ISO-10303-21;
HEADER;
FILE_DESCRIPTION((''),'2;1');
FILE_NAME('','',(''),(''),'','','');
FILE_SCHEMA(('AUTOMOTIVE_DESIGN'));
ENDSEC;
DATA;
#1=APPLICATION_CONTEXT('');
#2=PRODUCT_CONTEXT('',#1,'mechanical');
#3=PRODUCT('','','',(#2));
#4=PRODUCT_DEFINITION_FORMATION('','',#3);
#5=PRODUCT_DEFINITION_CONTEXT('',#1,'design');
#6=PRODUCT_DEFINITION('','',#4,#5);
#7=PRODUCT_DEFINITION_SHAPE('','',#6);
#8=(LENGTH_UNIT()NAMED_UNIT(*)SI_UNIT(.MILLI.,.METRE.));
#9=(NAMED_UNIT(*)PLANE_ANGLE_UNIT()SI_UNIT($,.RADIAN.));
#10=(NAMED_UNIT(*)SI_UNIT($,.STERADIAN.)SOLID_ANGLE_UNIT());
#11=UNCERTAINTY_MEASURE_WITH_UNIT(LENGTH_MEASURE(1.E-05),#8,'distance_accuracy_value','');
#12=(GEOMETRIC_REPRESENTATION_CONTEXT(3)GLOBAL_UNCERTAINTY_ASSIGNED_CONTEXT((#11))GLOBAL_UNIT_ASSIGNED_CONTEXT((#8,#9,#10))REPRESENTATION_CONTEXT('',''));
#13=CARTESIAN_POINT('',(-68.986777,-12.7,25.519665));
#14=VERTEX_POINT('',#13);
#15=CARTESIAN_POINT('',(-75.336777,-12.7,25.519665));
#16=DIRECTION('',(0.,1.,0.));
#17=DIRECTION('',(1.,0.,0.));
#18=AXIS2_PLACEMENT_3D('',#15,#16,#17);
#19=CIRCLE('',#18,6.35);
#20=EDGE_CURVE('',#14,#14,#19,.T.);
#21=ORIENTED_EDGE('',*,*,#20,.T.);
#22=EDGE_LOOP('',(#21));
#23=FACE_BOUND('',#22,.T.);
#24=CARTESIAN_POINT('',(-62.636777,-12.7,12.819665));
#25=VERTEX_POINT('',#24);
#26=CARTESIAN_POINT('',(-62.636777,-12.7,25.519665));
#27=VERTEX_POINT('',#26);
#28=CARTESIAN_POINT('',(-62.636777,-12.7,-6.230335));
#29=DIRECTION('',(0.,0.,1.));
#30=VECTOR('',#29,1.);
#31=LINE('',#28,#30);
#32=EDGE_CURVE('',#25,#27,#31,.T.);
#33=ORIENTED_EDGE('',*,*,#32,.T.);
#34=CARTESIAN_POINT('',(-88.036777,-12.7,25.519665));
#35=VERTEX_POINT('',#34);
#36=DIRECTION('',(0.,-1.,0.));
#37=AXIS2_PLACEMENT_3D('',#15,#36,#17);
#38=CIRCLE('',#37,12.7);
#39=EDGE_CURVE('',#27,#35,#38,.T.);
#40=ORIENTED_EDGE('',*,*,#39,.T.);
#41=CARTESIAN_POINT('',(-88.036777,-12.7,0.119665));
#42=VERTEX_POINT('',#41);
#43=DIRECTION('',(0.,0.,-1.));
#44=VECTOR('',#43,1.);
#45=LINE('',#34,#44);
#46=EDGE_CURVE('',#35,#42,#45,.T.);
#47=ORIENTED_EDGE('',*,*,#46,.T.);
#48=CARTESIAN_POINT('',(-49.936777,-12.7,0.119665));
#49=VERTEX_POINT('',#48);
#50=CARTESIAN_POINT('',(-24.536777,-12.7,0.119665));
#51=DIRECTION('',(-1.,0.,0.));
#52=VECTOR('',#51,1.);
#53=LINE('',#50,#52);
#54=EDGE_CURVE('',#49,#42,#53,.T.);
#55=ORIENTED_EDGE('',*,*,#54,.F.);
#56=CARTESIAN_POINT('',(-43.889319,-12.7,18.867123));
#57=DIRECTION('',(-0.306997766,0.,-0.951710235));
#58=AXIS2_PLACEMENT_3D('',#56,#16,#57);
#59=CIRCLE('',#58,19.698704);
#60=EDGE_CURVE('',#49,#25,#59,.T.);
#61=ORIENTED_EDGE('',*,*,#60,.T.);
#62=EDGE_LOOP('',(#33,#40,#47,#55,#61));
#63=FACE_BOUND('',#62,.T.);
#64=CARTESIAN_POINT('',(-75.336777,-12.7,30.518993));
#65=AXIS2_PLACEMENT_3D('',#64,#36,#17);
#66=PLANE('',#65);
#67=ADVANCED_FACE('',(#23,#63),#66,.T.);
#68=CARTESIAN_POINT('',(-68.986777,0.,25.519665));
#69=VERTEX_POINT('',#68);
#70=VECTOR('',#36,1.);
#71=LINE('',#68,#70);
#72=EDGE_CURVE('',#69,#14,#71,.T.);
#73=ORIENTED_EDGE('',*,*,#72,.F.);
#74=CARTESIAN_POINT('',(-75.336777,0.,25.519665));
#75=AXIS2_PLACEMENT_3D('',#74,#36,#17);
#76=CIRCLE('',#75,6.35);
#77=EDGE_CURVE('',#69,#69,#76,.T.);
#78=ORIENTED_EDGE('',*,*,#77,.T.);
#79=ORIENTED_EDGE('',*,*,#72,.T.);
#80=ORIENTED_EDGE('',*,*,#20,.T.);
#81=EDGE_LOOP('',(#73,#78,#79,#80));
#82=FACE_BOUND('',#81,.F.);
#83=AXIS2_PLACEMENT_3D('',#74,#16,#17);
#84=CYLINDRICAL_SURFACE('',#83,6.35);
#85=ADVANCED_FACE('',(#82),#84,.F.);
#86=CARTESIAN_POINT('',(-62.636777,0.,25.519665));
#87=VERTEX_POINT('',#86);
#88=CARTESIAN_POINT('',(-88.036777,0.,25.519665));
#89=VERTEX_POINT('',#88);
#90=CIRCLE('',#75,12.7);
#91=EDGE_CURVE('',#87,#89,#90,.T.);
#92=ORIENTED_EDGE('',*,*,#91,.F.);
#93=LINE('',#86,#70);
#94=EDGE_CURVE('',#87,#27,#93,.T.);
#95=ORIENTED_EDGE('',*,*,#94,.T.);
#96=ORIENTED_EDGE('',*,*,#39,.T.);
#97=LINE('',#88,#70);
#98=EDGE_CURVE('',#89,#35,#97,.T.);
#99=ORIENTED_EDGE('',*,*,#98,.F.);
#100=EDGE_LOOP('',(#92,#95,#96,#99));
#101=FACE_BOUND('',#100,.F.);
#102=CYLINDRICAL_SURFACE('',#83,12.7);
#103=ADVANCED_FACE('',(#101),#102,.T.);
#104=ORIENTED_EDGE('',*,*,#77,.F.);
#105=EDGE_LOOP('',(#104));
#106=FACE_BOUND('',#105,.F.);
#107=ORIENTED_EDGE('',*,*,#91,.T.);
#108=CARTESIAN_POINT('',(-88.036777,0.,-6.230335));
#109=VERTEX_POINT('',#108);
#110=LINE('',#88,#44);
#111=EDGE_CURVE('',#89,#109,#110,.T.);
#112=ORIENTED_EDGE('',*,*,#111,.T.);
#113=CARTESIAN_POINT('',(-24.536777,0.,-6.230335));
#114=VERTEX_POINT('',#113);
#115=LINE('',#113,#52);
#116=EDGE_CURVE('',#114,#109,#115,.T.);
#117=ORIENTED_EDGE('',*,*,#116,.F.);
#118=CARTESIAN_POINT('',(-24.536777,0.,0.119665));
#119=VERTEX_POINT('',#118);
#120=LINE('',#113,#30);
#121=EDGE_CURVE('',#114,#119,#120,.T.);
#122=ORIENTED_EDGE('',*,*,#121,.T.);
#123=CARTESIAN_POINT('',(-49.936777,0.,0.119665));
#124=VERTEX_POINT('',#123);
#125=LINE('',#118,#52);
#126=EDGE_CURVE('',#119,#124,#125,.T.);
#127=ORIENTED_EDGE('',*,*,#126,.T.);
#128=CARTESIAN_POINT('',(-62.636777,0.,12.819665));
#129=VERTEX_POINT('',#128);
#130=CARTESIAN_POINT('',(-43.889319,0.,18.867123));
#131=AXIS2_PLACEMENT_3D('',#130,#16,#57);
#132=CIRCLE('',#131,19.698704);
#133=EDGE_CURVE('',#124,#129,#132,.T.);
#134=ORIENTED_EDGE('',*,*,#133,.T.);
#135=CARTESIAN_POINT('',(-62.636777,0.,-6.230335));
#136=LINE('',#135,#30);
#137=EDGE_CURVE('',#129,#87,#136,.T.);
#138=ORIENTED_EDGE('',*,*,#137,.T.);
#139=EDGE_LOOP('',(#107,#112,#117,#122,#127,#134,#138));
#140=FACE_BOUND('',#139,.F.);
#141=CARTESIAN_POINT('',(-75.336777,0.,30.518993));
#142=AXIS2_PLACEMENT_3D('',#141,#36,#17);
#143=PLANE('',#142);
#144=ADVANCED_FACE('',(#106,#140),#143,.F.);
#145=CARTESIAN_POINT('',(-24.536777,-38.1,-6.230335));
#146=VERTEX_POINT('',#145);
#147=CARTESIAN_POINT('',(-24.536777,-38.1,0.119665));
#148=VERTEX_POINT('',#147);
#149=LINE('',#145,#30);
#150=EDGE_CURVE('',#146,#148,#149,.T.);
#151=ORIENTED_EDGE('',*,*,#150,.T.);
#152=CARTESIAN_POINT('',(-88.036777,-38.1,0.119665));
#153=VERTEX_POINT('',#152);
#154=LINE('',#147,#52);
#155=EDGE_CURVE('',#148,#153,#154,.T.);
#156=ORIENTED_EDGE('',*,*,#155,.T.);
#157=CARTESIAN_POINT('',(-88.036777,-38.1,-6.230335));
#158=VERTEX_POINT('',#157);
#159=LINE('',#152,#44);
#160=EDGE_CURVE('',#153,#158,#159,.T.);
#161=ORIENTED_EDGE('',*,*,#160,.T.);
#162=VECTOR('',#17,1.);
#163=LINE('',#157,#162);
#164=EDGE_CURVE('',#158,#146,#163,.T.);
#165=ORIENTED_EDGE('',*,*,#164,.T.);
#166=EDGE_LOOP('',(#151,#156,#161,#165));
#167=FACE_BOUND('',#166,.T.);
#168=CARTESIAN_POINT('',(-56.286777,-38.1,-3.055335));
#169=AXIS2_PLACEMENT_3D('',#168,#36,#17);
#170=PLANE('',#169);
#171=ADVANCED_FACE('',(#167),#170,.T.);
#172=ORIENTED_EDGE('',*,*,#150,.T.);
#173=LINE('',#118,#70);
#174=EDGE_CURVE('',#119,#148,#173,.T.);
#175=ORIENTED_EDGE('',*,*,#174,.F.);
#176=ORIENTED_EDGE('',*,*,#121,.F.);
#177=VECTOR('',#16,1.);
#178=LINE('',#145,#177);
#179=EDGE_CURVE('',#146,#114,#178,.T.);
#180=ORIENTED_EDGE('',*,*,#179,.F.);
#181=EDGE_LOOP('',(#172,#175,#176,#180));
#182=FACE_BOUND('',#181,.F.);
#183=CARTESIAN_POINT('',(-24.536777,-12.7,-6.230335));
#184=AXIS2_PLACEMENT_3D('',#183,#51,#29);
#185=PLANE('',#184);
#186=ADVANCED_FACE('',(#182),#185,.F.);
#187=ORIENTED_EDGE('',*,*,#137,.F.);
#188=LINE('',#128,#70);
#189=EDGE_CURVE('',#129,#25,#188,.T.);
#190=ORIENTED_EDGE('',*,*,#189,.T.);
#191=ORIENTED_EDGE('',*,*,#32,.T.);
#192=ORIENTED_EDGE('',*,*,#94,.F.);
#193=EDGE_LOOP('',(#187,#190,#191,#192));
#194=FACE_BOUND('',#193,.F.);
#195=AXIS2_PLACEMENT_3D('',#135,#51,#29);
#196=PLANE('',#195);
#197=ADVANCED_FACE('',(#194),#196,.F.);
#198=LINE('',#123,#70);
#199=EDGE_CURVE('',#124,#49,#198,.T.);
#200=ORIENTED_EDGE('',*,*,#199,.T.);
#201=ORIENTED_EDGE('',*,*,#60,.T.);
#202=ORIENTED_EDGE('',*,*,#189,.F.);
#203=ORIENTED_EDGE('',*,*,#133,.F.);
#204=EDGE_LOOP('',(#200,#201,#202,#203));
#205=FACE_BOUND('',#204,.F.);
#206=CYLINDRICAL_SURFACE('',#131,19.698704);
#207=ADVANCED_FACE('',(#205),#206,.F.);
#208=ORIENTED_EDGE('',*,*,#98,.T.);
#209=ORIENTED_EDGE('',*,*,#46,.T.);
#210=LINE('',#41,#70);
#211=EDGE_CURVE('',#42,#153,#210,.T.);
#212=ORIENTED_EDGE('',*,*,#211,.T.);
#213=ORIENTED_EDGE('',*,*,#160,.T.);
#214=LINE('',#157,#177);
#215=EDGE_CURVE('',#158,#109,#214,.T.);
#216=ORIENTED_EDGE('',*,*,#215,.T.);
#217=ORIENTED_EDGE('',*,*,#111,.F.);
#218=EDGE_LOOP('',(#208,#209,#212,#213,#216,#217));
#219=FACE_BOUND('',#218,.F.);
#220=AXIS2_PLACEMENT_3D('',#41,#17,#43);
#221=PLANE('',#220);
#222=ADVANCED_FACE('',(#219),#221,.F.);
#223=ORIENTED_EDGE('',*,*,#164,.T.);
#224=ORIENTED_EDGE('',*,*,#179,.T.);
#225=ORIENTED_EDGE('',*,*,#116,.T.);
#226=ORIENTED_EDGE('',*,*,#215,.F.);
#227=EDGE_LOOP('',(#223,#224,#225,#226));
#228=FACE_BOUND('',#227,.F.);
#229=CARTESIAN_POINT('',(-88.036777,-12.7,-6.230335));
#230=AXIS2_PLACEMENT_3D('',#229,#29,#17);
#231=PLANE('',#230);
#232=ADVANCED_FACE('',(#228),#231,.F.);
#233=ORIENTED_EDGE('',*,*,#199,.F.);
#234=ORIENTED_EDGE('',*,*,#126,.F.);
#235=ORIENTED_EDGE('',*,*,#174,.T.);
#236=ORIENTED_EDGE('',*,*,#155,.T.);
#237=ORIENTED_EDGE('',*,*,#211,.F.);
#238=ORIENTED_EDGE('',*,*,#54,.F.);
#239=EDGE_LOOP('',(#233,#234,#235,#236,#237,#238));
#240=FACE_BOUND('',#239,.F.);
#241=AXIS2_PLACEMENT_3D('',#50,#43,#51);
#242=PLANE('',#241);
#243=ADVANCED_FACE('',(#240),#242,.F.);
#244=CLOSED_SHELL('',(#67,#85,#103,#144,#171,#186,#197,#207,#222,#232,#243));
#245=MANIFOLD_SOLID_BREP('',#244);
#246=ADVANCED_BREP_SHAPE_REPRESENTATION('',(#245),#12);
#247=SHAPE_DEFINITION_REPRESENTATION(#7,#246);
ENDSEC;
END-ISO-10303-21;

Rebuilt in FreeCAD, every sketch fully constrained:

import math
import FreeCAD as App
import Part
import Sketcher
from FreeCAD import Vector
Q = App.Units.Quantity

doc = App.newDocument("Part")
body = doc.addObject("PartDesign::Body", "Body")

# Sketch on XZ plane
sketch1 = body.newObject("Sketcher::SketchObject", "Sketch")
sketch1.AttachmentSupport = (doc.getObject("XZ_Plane"), [""])
sketch1.MapMode = "FlatFace"
sketch1.addGeometry([
    Part.ArcOfCircle(Part.Circle(Vector(-75, 26, 0), Vector(0, 0, 1), 13), math.radians(0), math.radians(180)),  # 0
    Part.LineSegment(Vector(-88, 26, 0), Vector(-88, -6, 0)),  # 1
    Part.LineSegment(Vector(-88, -6, 0), Vector(-63, -6, 0)),  # 2
    Part.LineSegment(Vector(-63, -6, 0), Vector(-63, 26, 0)),  # 3
    Part.Circle(Vector(-75, 26, 0), Vector(0, 0, 1), 6),  # 4
], False)
sketch1.addConstraint([
    Sketcher.Constraint("Tangent", 0, 2, 1, 1),
    Sketcher.Constraint("Coincident", 1, 2, 2, 1),
    Sketcher.Constraint("Coincident", 2, 2, 3, 1),
    Sketcher.Constraint("Tangent", 3, 2, 0, 1),
    Sketcher.Constraint("Vertical", 1),
    Sketcher.Constraint("Horizontal", 2),
    Sketcher.Constraint("Vertical", 3),
    Sketcher.Constraint("Coincident", 4, 3, 0, 3),
    Sketcher.Constraint("Diameter", 4, Q("0.5 in")),
    Sketcher.Constraint("Radius", 0, Q("0.5 in")),
    Sketcher.Constraint("DistanceY", 1, 2, 1, 1, Q("1.25 in")),
    Sketcher.Constraint("DistanceX", 0, 3, -1, 1, 75.336777),
    Sketcher.Constraint("DistanceY", -1, 1, 0, 3, 25.519665),
])
pad1 = body.newObject("PartDesign::Pad", "Pad")
pad1.Profile = sketch1
pad1.Length = Q("0.5 in")

# Sketch on XZ plane
sketch2 = body.newObject("Sketcher::SketchObject", "Sketch001")
sketch2.AttachmentSupport = (doc.getObject("XZ_Plane"), [""])
sketch2.MapMode = "FlatFace"
sketch2.addGeometry([
    Part.LineSegment(Vector(-88, 26, 0), Vector(-88, -6, 0)),  # 0
    Part.LineSegment(Vector(-88, -6, 0), Vector(-25, -6, 0)),  # 1
    Part.LineSegment(Vector(-25, -6, 0), Vector(-25, 0, 0)),  # 2
    Part.LineSegment(Vector(-25, 0, 0), Vector(-50, 0, 0)),  # 3
    Part.ArcOfCircle(Part.Circle(Vector(-44, 19, 0), Vector(0, 0, 1), 20), math.radians(-162), math.radians(-108)),  # 4
    Part.LineSegment(Vector(-63, 13, 0), Vector(-63, 26, 0)),  # 5
    Part.ArcOfCircle(Part.Circle(Vector(-75, 26, 0), Vector(0, 0, 1), 13), math.radians(0), math.radians(180)),  # 6
    Part.Circle(Vector(-75, 26, 0), Vector(0, 0, 1), 6),  # 7
], False)
sketch2.addConstraint([
    Sketcher.Constraint("Coincident", 0, 2, 1, 1),
    Sketcher.Constraint("Coincident", 1, 2, 2, 1),
    Sketcher.Constraint("Coincident", 2, 2, 3, 1),
    Sketcher.Constraint("Coincident", 3, 2, 4, 2),
    Sketcher.Constraint("Coincident", 4, 1, 5, 1),
    Sketcher.Constraint("Tangent", 5, 2, 6, 1),
    Sketcher.Constraint("Tangent", 6, 2, 0, 1),
    Sketcher.Constraint("Vertical", 0),
    Sketcher.Constraint("Horizontal", 1),
    Sketcher.Constraint("Vertical", 2),
    Sketcher.Constraint("Horizontal", 3),
    Sketcher.Constraint("Vertical", 5),
    Sketcher.Constraint("Coincident", 7, 3, 6, 3),
    Sketcher.Constraint("Diameter", 7, Q("0.5 in")),
    Sketcher.Constraint("Radius", 6, Q("0.5 in")),
    Sketcher.Constraint("DistanceX", 3, 2, 3, 1, Q("1 in")),
    Sketcher.Constraint("DistanceX", 1, 1, 1, 2, Q("2.5 in")),
    Sketcher.Constraint("DistanceY", 5, 1, 5, 2, Q("0.5 in")),
    Sketcher.Constraint("DistanceY", 2, 2, 6, 3, Q("1 in")),
    Sketcher.Constraint("DistanceY", 0, 2, 0, 1, Q("1.25 in")),
    Sketcher.Constraint("DistanceY", -1, 1, 4, 3, Q("0.7428001 in")),
    Sketcher.Constraint("Radius", 4, 19.698704),
    Sketcher.Constraint("DistanceX", 4, 3, -1, 1, 43.889319),
])
pad2 = body.newObject("PartDesign::Pad", "Pad001")
pad2.Profile = sketch2
pad2.Length = Q("0.5 in")

# Sketch on XZ plane
sketch3 = body.newObject("Sketcher::SketchObject", "Sketch002")
sketch3.AttachmentSupport = (doc.getObject("XZ_Plane"), [""])
sketch3.MapMode = "FlatFace"
sketch3.AttachmentOffset = App.Placement(Vector(0, 0, 0.5 * 25.4), App.Rotation())
sketch3.addGeometry([
    Part.LineSegment(Vector(-25, -6, 0), Vector(-25, 0, 0)),
    Part.LineSegment(Vector(-25, 0, 0), Vector(-88, 0, 0)),
    Part.LineSegment(Vector(-88, 0, 0), Vector(-88, -6, 0)),
    Part.LineSegment(Vector(-88, -6, 0), Vector(-25, -6, 0)),
], False)
sketch3.addConstraint([
    Sketcher.Constraint("Coincident", 0, 2, 1, 1),
    Sketcher.Constraint("Coincident", 1, 2, 2, 1),
    Sketcher.Constraint("Coincident", 2, 2, 3, 1),
    Sketcher.Constraint("Coincident", 3, 2, 0, 1),
    Sketcher.Constraint("Vertical", 0),
    Sketcher.Constraint("Horizontal", 1),
    Sketcher.Constraint("Vertical", 2),
    Sketcher.Constraint("Horizontal", 3),
    Sketcher.Constraint("DistanceX", 1, 2, 1, 1, Q("2.5 in")),
    Sketcher.Constraint("DistanceY", 0, 1, 0, 2, Q("0.25 in")),
    Sketcher.Constraint("DistanceX", 0, 2, -1, 1, 24.536777),
    Sketcher.Constraint("DistanceY", -1, 1, 0, 2, 0.119665),
])
pad3 = body.newObject("PartDesign::Pad", "Pad002")
pad3.Profile = sketch3
pad3.Length = Q("1 in")

doc.recompute()
